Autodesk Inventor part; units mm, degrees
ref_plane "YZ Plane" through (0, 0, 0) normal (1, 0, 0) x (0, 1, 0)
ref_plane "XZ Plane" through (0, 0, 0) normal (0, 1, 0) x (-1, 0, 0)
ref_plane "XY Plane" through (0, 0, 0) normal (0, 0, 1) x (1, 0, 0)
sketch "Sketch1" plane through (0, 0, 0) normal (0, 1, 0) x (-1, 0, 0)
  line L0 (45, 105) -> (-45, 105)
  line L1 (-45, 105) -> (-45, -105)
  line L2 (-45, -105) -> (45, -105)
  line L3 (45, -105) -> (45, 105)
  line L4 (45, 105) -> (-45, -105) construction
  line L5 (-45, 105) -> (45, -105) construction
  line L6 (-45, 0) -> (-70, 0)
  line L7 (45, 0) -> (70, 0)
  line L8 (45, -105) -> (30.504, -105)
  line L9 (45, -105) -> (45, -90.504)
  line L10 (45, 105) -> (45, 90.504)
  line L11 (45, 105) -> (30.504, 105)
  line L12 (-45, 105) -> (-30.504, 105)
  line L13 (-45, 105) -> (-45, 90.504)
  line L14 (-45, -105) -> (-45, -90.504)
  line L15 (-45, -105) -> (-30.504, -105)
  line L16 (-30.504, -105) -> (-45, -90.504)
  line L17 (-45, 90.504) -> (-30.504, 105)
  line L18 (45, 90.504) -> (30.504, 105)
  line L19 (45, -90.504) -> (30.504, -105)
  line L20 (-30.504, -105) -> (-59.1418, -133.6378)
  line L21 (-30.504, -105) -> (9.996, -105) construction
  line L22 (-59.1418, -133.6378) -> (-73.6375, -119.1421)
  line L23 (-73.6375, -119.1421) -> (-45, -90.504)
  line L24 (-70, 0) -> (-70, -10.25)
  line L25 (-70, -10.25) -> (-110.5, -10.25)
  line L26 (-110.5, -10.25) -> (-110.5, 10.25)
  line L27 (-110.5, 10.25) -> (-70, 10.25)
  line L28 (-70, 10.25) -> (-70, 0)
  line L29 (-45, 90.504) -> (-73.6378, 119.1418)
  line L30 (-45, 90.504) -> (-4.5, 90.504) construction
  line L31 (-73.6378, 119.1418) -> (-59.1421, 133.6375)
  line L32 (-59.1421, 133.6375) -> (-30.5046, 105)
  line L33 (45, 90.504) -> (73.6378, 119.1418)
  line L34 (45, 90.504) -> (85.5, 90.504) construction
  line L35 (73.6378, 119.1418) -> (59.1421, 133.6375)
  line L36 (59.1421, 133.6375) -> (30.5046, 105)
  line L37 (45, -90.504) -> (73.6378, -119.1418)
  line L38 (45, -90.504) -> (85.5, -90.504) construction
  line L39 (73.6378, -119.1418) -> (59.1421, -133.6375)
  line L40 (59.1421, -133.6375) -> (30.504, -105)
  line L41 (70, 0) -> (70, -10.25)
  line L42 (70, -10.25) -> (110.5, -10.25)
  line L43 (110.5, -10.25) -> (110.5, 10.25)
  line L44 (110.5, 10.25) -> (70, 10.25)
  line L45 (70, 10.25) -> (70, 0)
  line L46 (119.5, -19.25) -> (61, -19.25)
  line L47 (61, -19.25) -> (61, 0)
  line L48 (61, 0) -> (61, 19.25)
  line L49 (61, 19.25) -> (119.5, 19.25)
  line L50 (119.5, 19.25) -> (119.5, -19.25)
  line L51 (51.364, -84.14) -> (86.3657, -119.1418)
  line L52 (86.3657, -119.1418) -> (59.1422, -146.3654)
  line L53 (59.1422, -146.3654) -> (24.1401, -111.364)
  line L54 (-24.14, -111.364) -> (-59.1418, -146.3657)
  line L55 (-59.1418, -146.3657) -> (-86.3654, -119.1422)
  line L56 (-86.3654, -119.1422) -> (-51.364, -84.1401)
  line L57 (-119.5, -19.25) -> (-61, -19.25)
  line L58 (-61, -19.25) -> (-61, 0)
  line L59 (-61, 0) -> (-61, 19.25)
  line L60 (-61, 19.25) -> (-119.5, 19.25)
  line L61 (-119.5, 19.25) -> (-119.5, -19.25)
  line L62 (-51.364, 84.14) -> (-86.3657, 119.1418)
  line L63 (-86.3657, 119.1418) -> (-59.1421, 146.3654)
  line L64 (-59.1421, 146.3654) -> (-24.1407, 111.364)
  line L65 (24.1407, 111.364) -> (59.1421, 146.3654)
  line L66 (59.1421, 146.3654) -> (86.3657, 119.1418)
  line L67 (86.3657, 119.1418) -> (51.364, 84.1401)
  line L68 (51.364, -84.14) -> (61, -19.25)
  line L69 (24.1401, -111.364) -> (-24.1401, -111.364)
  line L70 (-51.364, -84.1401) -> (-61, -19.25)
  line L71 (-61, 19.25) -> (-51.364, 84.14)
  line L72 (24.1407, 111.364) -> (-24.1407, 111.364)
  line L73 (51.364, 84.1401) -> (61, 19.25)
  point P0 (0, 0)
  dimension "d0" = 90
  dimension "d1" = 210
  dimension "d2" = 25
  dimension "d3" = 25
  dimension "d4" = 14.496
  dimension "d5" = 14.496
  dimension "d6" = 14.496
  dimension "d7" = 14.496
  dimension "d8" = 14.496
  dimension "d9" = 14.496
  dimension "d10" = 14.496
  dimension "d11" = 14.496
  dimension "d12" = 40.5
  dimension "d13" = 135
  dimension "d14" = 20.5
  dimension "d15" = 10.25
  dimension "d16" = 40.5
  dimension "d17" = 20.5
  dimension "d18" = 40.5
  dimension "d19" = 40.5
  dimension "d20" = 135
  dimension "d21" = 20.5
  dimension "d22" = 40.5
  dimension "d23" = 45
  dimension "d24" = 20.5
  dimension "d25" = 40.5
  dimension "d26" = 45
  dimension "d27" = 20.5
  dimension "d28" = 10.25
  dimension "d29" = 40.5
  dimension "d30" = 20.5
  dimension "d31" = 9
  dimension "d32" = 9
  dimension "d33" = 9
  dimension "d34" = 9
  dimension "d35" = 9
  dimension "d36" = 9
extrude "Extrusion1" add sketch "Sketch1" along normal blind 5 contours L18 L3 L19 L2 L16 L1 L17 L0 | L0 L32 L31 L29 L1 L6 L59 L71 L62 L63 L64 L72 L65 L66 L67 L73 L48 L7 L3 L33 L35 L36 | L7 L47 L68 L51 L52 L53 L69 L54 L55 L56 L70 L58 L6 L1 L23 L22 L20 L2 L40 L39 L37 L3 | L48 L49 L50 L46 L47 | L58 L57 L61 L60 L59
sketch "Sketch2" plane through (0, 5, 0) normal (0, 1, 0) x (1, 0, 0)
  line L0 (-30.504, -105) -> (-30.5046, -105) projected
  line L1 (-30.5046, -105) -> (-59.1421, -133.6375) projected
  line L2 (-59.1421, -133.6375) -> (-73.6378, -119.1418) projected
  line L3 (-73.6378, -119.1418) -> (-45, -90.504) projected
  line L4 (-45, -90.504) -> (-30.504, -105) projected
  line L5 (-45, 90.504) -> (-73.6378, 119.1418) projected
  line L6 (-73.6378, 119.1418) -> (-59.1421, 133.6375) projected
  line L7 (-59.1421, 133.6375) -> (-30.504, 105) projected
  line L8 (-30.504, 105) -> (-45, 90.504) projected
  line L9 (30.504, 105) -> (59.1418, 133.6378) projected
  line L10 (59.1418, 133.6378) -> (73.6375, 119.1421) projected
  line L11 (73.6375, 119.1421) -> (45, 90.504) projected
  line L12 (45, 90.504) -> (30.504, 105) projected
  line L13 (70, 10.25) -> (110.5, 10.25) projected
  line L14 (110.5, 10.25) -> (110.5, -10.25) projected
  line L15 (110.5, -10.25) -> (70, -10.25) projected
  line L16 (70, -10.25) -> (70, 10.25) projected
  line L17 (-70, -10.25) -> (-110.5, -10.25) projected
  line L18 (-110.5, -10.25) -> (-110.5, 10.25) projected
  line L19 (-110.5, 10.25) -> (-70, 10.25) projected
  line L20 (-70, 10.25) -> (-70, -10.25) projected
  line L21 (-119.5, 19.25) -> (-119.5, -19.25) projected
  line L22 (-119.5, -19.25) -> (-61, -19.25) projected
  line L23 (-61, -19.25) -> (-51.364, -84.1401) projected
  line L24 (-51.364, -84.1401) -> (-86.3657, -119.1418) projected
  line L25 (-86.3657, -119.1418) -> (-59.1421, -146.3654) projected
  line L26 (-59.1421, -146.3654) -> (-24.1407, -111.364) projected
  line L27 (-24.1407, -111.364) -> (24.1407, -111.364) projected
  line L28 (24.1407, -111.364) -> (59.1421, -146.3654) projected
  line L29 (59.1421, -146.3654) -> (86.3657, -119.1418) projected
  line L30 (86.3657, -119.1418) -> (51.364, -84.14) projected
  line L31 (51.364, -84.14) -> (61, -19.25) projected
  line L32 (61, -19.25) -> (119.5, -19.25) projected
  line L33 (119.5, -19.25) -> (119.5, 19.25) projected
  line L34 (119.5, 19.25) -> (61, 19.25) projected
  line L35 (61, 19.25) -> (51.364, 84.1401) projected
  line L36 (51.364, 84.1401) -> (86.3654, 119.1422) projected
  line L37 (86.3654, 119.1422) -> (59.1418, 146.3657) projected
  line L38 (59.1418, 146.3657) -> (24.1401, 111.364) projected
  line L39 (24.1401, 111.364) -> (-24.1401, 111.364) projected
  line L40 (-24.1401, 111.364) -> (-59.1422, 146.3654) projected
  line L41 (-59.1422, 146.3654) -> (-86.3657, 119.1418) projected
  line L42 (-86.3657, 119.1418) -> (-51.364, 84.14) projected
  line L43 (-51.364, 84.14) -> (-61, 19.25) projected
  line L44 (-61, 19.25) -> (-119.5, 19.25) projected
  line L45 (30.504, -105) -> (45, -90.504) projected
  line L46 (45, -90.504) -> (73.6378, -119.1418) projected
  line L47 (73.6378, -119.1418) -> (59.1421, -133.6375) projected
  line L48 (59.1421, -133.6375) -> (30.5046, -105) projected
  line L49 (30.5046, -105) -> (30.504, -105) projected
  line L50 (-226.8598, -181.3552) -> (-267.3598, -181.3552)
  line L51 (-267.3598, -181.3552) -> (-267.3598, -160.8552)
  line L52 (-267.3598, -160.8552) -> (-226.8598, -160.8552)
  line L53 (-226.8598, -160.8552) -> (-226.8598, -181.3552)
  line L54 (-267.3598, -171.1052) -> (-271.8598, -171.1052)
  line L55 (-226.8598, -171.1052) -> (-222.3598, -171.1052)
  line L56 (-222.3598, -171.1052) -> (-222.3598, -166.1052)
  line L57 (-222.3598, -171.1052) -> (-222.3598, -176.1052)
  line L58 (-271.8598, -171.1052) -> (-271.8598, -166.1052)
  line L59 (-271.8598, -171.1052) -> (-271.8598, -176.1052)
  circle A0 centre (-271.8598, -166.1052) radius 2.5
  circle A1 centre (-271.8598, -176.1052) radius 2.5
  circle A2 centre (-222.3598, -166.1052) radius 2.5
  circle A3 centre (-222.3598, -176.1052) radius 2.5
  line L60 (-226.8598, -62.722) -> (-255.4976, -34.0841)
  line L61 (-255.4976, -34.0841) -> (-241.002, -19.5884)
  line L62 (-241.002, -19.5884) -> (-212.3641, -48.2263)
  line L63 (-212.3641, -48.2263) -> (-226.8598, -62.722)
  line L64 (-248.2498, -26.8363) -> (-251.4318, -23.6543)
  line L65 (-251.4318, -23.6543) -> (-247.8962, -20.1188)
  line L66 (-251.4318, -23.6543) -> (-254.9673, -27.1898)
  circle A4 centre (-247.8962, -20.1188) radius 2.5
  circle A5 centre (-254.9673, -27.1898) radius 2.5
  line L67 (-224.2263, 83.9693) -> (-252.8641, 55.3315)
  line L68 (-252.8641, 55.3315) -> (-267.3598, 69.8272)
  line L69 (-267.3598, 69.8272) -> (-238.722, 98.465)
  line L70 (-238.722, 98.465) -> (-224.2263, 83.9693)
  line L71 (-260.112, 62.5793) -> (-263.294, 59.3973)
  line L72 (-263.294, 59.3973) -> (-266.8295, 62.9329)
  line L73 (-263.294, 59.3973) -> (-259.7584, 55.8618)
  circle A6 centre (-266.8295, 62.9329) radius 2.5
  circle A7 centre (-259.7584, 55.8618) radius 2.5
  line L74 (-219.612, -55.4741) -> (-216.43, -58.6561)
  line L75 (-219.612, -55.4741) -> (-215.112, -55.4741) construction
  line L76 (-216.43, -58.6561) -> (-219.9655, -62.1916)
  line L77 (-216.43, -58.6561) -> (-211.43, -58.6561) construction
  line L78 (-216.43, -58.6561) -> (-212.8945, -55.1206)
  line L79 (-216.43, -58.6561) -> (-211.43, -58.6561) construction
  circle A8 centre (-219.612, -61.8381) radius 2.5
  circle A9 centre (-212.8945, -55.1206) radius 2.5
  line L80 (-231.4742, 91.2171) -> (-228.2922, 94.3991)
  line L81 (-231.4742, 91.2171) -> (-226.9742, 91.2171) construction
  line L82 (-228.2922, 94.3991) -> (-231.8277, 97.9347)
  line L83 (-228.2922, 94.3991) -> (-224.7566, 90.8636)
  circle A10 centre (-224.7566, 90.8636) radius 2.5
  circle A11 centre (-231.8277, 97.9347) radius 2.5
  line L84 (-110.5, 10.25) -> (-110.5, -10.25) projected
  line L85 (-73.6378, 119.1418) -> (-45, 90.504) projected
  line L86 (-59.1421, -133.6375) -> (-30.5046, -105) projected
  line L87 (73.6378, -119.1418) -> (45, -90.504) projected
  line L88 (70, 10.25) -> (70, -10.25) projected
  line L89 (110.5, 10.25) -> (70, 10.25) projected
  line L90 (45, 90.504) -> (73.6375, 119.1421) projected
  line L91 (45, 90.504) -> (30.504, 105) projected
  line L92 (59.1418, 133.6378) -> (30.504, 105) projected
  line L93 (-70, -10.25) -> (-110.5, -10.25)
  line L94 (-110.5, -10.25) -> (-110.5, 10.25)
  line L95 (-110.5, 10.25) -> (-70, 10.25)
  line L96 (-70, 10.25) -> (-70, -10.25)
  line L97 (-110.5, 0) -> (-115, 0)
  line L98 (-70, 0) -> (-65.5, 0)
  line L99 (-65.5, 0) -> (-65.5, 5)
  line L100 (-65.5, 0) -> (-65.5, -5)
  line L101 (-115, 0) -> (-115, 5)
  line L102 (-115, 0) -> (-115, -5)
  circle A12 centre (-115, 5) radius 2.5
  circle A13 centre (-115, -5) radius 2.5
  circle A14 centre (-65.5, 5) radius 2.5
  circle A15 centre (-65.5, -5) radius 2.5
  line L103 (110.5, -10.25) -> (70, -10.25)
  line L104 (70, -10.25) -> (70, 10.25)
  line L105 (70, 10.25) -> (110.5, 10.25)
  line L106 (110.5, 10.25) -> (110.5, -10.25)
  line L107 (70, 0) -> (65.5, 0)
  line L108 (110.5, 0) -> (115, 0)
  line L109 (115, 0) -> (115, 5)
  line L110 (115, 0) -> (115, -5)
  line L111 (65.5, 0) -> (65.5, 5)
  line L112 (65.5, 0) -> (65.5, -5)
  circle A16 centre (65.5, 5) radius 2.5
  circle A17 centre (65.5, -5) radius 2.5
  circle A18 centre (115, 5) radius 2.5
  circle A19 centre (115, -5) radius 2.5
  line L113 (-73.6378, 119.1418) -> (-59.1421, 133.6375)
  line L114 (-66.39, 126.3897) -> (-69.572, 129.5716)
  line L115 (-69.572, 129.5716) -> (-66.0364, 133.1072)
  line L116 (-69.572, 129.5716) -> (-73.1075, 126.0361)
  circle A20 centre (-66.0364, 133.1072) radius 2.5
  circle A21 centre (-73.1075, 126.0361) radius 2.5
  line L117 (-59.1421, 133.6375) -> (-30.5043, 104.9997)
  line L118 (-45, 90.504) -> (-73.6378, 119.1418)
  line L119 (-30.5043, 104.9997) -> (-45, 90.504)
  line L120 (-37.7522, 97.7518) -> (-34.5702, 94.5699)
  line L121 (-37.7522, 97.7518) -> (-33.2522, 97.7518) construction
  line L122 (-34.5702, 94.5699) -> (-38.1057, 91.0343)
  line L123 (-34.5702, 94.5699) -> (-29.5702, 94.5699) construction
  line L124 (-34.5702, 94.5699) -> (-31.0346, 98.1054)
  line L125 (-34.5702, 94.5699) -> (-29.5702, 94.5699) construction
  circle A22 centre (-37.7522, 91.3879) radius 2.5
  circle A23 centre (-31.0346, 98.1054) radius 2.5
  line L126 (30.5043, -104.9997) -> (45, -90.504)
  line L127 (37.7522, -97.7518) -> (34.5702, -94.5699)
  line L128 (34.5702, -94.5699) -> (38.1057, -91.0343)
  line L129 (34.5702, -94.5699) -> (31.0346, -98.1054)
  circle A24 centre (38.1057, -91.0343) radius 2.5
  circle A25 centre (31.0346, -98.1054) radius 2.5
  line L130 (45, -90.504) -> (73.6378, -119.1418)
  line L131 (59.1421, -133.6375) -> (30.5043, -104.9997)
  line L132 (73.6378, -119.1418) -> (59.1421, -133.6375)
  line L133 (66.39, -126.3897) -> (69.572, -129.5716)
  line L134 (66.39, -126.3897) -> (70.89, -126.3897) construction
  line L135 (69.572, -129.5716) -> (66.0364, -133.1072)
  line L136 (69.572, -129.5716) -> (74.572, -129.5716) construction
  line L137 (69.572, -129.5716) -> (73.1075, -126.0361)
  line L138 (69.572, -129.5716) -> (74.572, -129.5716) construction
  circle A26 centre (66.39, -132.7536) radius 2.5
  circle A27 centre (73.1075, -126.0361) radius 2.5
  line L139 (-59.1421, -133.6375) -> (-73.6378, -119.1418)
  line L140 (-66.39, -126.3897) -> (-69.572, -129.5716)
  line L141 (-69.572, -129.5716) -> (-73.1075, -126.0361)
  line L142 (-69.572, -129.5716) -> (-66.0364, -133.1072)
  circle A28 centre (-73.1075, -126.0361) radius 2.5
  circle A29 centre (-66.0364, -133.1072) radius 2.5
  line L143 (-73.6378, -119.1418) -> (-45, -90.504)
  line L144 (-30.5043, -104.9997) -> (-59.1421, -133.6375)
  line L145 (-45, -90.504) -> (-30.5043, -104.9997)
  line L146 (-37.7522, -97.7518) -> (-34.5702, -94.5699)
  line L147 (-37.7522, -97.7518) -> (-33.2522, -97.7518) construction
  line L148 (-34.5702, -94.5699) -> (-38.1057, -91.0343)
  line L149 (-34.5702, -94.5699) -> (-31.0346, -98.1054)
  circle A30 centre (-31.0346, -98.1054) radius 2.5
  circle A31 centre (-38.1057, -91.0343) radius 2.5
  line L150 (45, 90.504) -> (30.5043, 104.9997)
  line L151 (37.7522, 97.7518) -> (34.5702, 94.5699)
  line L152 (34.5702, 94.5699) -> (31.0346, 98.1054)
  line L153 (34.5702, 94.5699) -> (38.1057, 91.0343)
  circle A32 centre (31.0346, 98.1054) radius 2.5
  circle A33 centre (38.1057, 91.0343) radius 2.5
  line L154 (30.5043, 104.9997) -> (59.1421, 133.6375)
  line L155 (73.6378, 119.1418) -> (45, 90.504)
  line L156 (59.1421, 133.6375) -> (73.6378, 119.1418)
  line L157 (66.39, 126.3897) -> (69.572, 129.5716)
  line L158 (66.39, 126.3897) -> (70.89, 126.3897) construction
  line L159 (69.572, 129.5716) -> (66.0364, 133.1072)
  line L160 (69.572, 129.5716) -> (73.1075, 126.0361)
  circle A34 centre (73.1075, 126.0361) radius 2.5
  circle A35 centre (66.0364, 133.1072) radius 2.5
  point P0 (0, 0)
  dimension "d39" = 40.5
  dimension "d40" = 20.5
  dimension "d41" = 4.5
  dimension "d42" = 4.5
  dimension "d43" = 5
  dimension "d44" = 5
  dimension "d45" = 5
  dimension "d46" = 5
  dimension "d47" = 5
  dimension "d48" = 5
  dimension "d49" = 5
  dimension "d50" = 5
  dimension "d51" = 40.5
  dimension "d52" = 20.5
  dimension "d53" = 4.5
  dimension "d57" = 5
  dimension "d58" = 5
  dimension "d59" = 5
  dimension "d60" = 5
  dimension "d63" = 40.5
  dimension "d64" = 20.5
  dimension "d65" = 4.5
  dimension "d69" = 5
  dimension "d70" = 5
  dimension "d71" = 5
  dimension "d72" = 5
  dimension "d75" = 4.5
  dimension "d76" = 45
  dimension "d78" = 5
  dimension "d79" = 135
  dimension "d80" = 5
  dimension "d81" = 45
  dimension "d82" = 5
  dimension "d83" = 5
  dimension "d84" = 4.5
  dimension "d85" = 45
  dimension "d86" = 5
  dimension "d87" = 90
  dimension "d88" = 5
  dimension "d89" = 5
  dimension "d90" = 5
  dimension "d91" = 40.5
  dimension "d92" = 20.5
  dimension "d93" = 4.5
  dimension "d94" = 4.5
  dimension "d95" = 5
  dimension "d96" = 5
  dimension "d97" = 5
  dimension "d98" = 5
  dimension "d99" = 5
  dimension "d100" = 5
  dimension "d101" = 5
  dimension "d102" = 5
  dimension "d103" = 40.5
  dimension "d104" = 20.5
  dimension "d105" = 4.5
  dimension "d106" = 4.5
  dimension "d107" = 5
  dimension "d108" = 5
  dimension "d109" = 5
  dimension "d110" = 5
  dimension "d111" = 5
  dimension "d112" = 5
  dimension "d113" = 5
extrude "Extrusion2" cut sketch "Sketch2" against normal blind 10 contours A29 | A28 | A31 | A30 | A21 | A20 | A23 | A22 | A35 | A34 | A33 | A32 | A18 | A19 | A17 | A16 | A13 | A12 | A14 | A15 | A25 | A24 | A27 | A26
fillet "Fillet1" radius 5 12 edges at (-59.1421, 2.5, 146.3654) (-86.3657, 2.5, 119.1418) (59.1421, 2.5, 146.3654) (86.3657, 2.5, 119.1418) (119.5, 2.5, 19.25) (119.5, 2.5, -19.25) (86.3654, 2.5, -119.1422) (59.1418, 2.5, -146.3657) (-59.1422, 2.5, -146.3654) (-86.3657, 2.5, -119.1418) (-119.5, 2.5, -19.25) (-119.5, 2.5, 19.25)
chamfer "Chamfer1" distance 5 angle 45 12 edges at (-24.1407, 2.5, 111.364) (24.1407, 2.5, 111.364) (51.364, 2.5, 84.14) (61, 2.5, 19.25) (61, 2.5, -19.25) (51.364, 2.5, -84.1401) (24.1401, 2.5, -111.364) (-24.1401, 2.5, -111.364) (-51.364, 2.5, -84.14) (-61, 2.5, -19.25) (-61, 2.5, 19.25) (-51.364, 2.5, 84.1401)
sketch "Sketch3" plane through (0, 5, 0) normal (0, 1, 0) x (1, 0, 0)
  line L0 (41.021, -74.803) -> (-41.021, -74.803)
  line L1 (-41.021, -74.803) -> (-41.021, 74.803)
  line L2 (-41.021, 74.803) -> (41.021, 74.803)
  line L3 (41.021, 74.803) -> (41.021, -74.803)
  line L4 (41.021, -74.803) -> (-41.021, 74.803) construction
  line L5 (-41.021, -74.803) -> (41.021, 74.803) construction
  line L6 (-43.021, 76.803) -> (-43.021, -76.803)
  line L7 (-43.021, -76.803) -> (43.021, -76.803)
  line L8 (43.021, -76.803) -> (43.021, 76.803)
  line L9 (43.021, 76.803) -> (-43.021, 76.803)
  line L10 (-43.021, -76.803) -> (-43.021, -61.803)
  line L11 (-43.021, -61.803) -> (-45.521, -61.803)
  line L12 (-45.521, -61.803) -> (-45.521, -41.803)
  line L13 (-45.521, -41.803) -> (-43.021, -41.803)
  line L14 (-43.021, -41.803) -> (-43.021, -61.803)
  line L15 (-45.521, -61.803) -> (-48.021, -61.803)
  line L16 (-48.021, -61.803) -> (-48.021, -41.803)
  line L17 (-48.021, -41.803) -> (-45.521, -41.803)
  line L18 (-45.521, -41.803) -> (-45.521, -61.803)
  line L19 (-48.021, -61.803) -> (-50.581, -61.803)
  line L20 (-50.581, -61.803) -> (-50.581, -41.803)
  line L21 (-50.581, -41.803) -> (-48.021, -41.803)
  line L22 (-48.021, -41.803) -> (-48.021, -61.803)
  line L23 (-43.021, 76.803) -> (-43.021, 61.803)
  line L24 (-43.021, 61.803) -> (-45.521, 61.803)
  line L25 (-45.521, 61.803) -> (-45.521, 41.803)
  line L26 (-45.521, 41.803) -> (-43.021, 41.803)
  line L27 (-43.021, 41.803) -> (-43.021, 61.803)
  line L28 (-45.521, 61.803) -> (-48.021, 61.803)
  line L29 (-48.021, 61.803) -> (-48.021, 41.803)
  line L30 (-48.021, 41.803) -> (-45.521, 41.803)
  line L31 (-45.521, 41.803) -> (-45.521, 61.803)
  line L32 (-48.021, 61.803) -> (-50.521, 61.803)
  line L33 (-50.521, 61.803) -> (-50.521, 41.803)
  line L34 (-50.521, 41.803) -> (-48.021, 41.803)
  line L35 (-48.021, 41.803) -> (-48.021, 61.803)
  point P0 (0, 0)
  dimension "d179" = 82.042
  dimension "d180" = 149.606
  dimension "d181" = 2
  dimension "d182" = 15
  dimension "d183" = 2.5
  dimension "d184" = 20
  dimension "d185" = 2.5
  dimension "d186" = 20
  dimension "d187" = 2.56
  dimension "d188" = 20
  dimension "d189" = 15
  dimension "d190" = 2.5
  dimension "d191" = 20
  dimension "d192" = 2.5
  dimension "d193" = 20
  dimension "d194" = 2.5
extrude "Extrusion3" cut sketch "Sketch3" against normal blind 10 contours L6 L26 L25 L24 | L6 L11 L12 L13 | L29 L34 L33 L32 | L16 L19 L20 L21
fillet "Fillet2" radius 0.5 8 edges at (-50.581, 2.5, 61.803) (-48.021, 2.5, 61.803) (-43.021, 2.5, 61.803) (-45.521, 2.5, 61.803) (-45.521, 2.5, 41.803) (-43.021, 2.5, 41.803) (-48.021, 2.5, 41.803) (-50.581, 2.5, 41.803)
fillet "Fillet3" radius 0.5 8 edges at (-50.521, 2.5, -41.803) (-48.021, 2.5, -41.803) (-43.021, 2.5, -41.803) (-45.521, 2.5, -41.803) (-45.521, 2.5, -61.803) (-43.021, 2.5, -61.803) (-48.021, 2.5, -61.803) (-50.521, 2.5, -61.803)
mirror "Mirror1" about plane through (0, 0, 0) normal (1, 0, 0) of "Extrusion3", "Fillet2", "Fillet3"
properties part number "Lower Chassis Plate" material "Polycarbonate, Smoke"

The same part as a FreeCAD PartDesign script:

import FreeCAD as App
import Part
import Sketcher

V = App.Vector


def edges_at(feature, points):
    """Names of the edges that pass closest to the given points."""
    edges = feature.Shape.Edges
    near = lambda p: min(range(len(edges)), key=lambda i: edges[i].distToShape(Part.Vertex(*p))[0])
    return sorted({f"Edge{near(p) + 1}" for p in points})


def add_polygon(sketch, points):
    """Adds a closed chain of lines whose ends are joined by coincident constraints."""
    first, n = sketch.GeometryCount, len(points)
    for a, b in zip(points, points[1:] + points[:1]):
        sketch.addGeometry(Part.LineSegment(App.Vector(*a, 0), App.Vector(*b, 0)), False)
    for i in range(n):
        sketch.addConstraint(Sketcher.Constraint("Coincident", first + i, 2, first + (i + 1) % n, 1))

doc = App.newDocument("Part")
body = doc.addObject("PartDesign::Body", "Body")

# Sketch on XZ plane
sketch1 = body.newObject("Sketcher::SketchObject", "Sketch")
sketch1.AttachmentSupport = (doc.getObject("XZ_Plane"), [""])
sketch1.MapMode = "FlatFace"
add_polygon(sketch1, [(51.364, 84.14), (61, 19.25), (119.5, 19.25), (119.5, -19.25), (61, -19.25), (51.364, -84.1401), (86.3654, -119.1422), (59.1418, -146.3657), (24.14, -111.364), (-24.1401, -111.364), (-59.1422, -146.3654), (-86.3657, -119.1418), (-51.364, -84.14), (-61, -19.25), (-119.5, -19.25), (-119.5, 19.25), (-61, 19.25), (-51.364, 84.1401), (-86.3657, 119.1418), (-59.1421, 146.3654), (-24.1407, 111.364), (24.1407, 111.364), (59.1421, 146.3654), (86.3657, 119.1418)])  # lines 0-23
add_polygon(sketch1, [(-45, 90.504), (-30.504, 105), (-59.1421, 133.6375), (-73.6378, 119.1418)])  # lines 24-27
add_polygon(sketch1, [(-30.504, -105), (-45, -90.504), (-73.6378, -119.1418), (-59.1421, -133.6375)])  # lines 28-31
add_polygon(sketch1, [(45, -90.504), (30.504, -105), (59.1418, -133.6378), (73.6375, -119.1421)])  # lines 32-35
add_polygon(sketch1, [(30.504, 105), (45, 90.504), (73.6378, 119.1418), (59.1421, 133.6375)])  # lines 36-39
add_polygon(sketch1, [(70, 0), (70, -10.25), (110.5, -10.25), (110.5, 10.25), (70, 10.25)])  # lines 40-44
add_polygon(sketch1, [(-70, 0), (-70, 10.25), (-110.5, 10.25), (-110.5, -10.25), (-70, -10.25)])  # lines 45-49
sketch1.addConstraint([
    Sketcher.Constraint("Horizontal", 1),
    Sketcher.Constraint("Vertical", 2),
    Sketcher.Constraint("Horizontal", 3),
    Sketcher.Constraint("Horizontal", 8),
    Sketcher.Constraint("Horizontal", 13),
    Sketcher.Constraint("Vertical", 14),
    Sketcher.Constraint("Horizontal", 15),
    Sketcher.Constraint("Horizontal", 20),
    Sketcher.Constraint("Vertical", 40),
    Sketcher.Constraint("Horizontal", 41),
    Sketcher.Constraint("Vertical", 42),
    Sketcher.Constraint("Horizontal", 43),
    Sketcher.Constraint("Vertical", 44),
    Sketcher.Constraint("Vertical", 45),
    Sketcher.Constraint("Horizontal", 46),
    Sketcher.Constraint("Vertical", 47),
    Sketcher.Constraint("Horizontal", 48),
    Sketcher.Constraint("Vertical", 49),
    Sketcher.Constraint("Symmetric", 0, 2, 12, 2, -1, 1),
    Sketcher.Constraint("Symmetric", 2, 2, 14, 2, -1, 1),
    Sketcher.Constraint("Symmetric", 4, 2, 16, 2, -1, 1),
    Sketcher.Constraint("Symmetric", 9, 2, 21, 2, -1, 1),
    Sketcher.Constraint("Symmetric", 10, 2, 22, 2, -1, 1),
    Sketcher.Constraint("Symmetric", 11, 2, 23, 2, -1, 1),
    Sketcher.Constraint("Symmetric", 24, 2, 32, 2, -1, 1),
    Sketcher.Constraint("Symmetric", 27, 2, 35, 2, -1, 1),
    Sketcher.Constraint("Symmetric", 28, 2, 36, 2, -1, 1),
    Sketcher.Constraint("Symmetric", 29, 2, 37, 2, -1, 1),
    Sketcher.Constraint("Symmetric", 30, 2, 38, 2, -1, 1),
    Sketcher.Constraint("Symmetric", 31, 2, 39, 2, -1, 1),
    Sketcher.Constraint("Symmetric", 40, 2, 45, 2, -1, 1),
    Sketcher.Constraint("Symmetric", 42, 2, 47, 2, -1, 1),
    Sketcher.Constraint("Symmetric", 4, 2, 11, 2, -2),
    Sketcher.Constraint("Symmetric", 3, 2, 12, 2, -2),
    Sketcher.Constraint("Symmetric", 18, 2, 21, 2, -2),
    Sketcher.Constraint("Symmetric", 17, 2, 22, 2, -2),
    Sketcher.Constraint("Symmetric", 31, 2, 32, 2, -2),
    Sketcher.Constraint("Symmetric", 28, 2, 35, 2, -2),
    Sketcher.Constraint("Symmetric", 26, 2, 37, 2, -2),
    Sketcher.Constraint("Symmetric", 25, 2, 38, 2, -2),
    Sketcher.Constraint("PointOnObject", 44, 2, -1),
    Sketcher.Constraint("PointOnObject", 49, 2, -1),
    Sketcher.Constraint("Perpendicular", 5, 6),
    Sketcher.Constraint("Perpendicular", 6, 7),
    Sketcher.Constraint("Perpendicular", 7, 9),
    Sketcher.Constraint("Perpendicular", 9, 10),
    Sketcher.Constraint("Perpendicular", 10, 11),
    Sketcher.Constraint("Parallel", 4, 16),
    Sketcher.Constraint("Perpendicular", 11, 17),
    Sketcher.Constraint("Perpendicular", 18, 19),
    Sketcher.Constraint("Perpendicular", 19, 21),
    Sketcher.Constraint("Parallel", 23, 24),
    Sketcher.Constraint("Perpendicular", 24, 25),
    Sketcher.Constraint("Perpendicular", 25, 26),
    Sketcher.Constraint("Perpendicular", 26, 27),
    Sketcher.Constraint("Perpendicular", 32, 33),
    Sketcher.Constraint("Perpendicular", 33, 34),
    Sketcher.Constraint("Perpendicular", 34, 35),
    Sketcher.Constraint("Horizontal", 22, 2, 26, 2),
    Sketcher.Constraint("Horizontal", 5, 2, 34, 2),
    Sketcher.Constraint("Horizontal", 43, 2, 45, 2),
    Sketcher.Constraint("Vertical", 18, 2, 25, 2),
    Sketcher.Constraint("Vertical", 6, 2, 33, 2),
    Sketcher.Constraint("Equal", 5, 7),
    Sketcher.Constraint("Equal", 7, 9),
    Sketcher.Constraint("DistanceX", 41, 1, 41, 2, 40.5),
    Sketcher.Constraint("DistanceY", 42, 1, 42, 2, 20.5),
    Sketcher.Constraint("DistanceX", 27, 2, -1, 1, 45.0),
    Sketcher.Constraint("DistanceX", 3, 2, 40, 2, 9.0),
    Sketcher.Constraint("DistanceY", 3, 2, 40, 2, 9.0),
    Sketcher.Constraint("DistanceX", 41, 2, 2, 2, 9.0),
    Sketcher.Constraint("Distance", 25, 40.5),
    Sketcher.Constraint("Distance", 26, 20.5),
    Sketcher.Constraint("DistanceX", -1, 1, 0, 2, 61.0),
    Sketcher.Constraint("DistanceY", -1, 1, 24, 2, 105.0),
    Sketcher.Constraint("Distance", 5, 49.5),
    Sketcher.Constraint("Distance", 6, 38.5),
    Sketcher.Constraint("DistanceY", 27, 2, 19, 2, 20.86),
])
pad1 = body.newObject("PartDesign::Pad", "Pad")
pad1.Profile = sketch1
pad1.Length = 5
pad1.Reversed = True

# Sketch on XZ plane
sketch2 = body.newObject("Sketcher::SketchObject", "Sketch001")
sketch2.AttachmentSupport = (doc.getObject("XZ_Plane"), [""])
sketch2.MapMode = "FlatFace"
sketch2.AttachmentOffset = App.Placement(V(0, 0, -5), App.Rotation())
sketch2.addGeometry([
    Part.Circle(V(-66.0364, 133.1072, 0), V(0, 0, 1), 2.5),  # 0
    Part.Circle(V(-73.1075, 126.0361, 0), V(0, 0, 1), 2.5),  # 1
    Part.Circle(V(-38.1057, 91.0343, 0), V(0, 0, 1), 2.5),  # 2
    Part.Circle(V(-31.0346, 98.1054, 0), V(0, 0, 1), 2.5),  # 3
    Part.Circle(V(-73.1075, -126.0361, 0), V(0, 0, 1), 2.5),  # 4
    Part.Circle(V(-66.0364, -133.1072, 0), V(0, 0, 1), 2.5),  # 5
    Part.Circle(V(-31.0346, -98.1054, 0), V(0, 0, 1), 2.5),  # 6
    Part.Circle(V(-37.7522, -91.3879, 0), V(0, 0, 1), 2.5),  # 7
    Part.Circle(V(66.0364, -133.1072, 0), V(0, 0, 1), 2.5),  # 8
    Part.Circle(V(73.1075, -126.0361, 0), V(0, 0, 1), 2.5),  # 9
    Part.Circle(V(38.1057, -91.0343, 0), V(0, 0, 1), 2.5),  # 10
    Part.Circle(V(31.0346, -98.1054, 0), V(0, 0, 1), 2.5),  # 11
    Part.Circle(V(115, -5, 0), V(0, 0, 1), 2.5),  # 12
    Part.Circle(V(115, 5, 0), V(0, 0, 1), 2.5),  # 13
    Part.Circle(V(65.5, 5, 0), V(0, 0, 1), 2.5),  # 14
    Part.Circle(V(65.5, -5, 0), V(0, 0, 1), 2.5),  # 15
    Part.Circle(V(-115, 5, 0), V(0, 0, 1), 2.5),  # 16
    Part.Circle(V(-115, -5, 0), V(0, 0, 1), 2.5),  # 17
    Part.Circle(V(-65.5, -5, 0), V(0, 0, 1), 2.5),  # 18
    Part.Circle(V(-65.5, 5, 0), V(0, 0, 1), 2.5),  # 19
    Part.Circle(V(31.0346, 98.1054, 0), V(0, 0, 1), 2.5),  # 20
    Part.Circle(V(38.1057, 91.0343, 0), V(0, 0, 1), 2.5),  # 21
    Part.Circle(V(73.1075, 126.0361, 0), V(0, 0, 1), 2.5),  # 22
    Part.Circle(V(66.39, 132.7536, 0), V(0, 0, 1), 2.5),  # 23
], False)
sketch2.addConstraint([
    Sketcher.Constraint("Equal", 0, 1),
    Sketcher.Constraint("Equal", 1, 2),
    Sketcher.Constraint("Equal", 2, 3),
    Sketcher.Constraint("Equal", 3, 4),
    Sketcher.Constraint("Equal", 4, 5),
    Sketcher.Constraint("Equal", 5, 6),
    Sketcher.Constraint("Equal", 6, 7),
    Sketcher.Constraint("Equal", 7, 8),
    Sketcher.Constraint("Equal", 8, 9),
    Sketcher.Constraint("Equal", 9, 10),
    Sketcher.Constraint("Equal", 10, 11),
    Sketcher.Constraint("Equal", 11, 12),
    Sketcher.Constraint("Equal", 12, 13),
    Sketcher.Constraint("Equal", 13, 14),
    Sketcher.Constraint("Equal", 14, 15),
    Sketcher.Constraint("Equal", 15, 16),
    Sketcher.Constraint("Equal", 16, 17),
    Sketcher.Constraint("Equal", 17, 18),
    Sketcher.Constraint("Equal", 18, 19),
    Sketcher.Constraint("Equal", 19, 20),
    Sketcher.Constraint("Equal", 20, 21),
    Sketcher.Constraint("Equal", 21, 22),
    Sketcher.Constraint("Equal", 22, 23),
    Sketcher.Constraint("Symmetric", 0, 3, 8, 3, -1, 1),
    Sketcher.Constraint("Symmetric", 1, 3, 9, 3, -1, 1),
    Sketcher.Constraint("Symmetric", 2, 3, 10, 3, -1, 1),
    Sketcher.Constraint("Symmetric", 3, 3, 11, 3, -1, 1),
    Sketcher.Constraint("Symmetric", 12, 3, 16, 3, -1, 1),
    Sketcher.Constraint("Symmetric", 13, 3, 17, 3, -1, 1),
    Sketcher.Constraint("Symmetric", 14, 3, 18, 3, -1, 1),
    Sketcher.Constraint("Symmetric", 15, 3, 19, 3, -1, 1),
    Sketcher.Constraint("Symmetric", 6, 3, 20, 3, -1, 1),
    Sketcher.Constraint("Symmetric", 4, 3, 22, 3, -1, 1),
    Sketcher.Constraint("Symmetric", 5, 3, 8, 3, -2),
    Sketcher.Constraint("Symmetric", 4, 3, 9, 3, -2),
    Sketcher.Constraint("Symmetric", 6, 3, 11, 3, -2),
    Sketcher.Constraint("Symmetric", 13, 3, 16, 3, -2),
    Sketcher.Constraint("Symmetric", 15, 3, 18, 3, -2),
    Sketcher.Constraint("Symmetric", 2, 3, 21, 3, -2),
    Sketcher.Constraint("Horizontal", 13, 3, 14, 3),
    Sketcher.Constraint("Diameter", 0, 5.0),
    Sketcher.Constraint("DistanceY", 12, 3, -1, 1, 5.0),
    Sketcher.Constraint("DistanceX", -1, 1, 12, 3, 115.0),
    Sketcher.Constraint("DistanceX", -1, 1, 14, 3, 65.5),
    Sketcher.Constraint("DistanceX", -1, 1, 23, 3, 66.39),
    Sketcher.Constraint("DistanceY", -1, 1, 1, 3, 126.036),
    Sketcher.Constraint("DistanceY", 7, 3, -1, 1, 91.388),
    Sketcher.Constraint("DistanceX", 1, 3, 0, 3, 7.071),
    Sketcher.Constraint("DistanceY", 1, 3, 0, 3, 7.071),
    Sketcher.Constraint("DistanceY", 2, 3, 0, 3, 42.073),
    Sketcher.Constraint("DistanceX", 2, 3, 3, 3, 7.071),
    Sketcher.Constraint("DistanceY", 2, 3, 3, 3, 7.071),
    Sketcher.Constraint("DistanceX", 1, 3, 3, 3, 42.073),
    Sketcher.Constraint("DistanceX", 6, 3, 8, 3, 97.071),
    Sketcher.Constraint("DistanceX", 7, 3, 10, 3, 75.858),
    Sketcher.Constraint("DistanceY", -1, 1, 23, 3, 132.7536),
])
pocket1 = body.newObject("PartDesign::Pocket", "Pocket")
pocket1.Profile = sketch2
pocket1.Length = 10
pocket1.Reversed = True
doc.recompute()

fillet = body.newObject("PartDesign::Fillet", "Fillet")
fillet.Base = (pocket1, edges_at(pocket1, [
    (-59.142, 2.5, 146.365),
    (-86.366, 2.5, 119.142),
    (59.142, 2.5, 146.365),
    (86.366, 2.5, 119.142),
    (119.5, 2.5, 19.25),
    (119.5, 2.5, -19.25),
    (86.365, 2.5, -119.142),
    (59.142, 2.5, -146.366),
    (-59.142, 2.5, -146.365),
    (-86.366, 2.5, -119.142),
    (-119.5, 2.5, -19.25),
    (-119.5, 2.5, 19.25),
]))
fillet.Radius = 5
doc.recompute()

chamfer = body.newObject("PartDesign::Chamfer", "Chamfer")
chamfer.Base = (fillet, edges_at(fillet, [
    (-24.141, 2.5, 111.364),
    (24.141, 2.5, 111.364),
    (51.364, 2.5, 84.14),
    (61, 2.5, 19.25),
    (61, 2.5, -19.25),
    (51.364, 2.5, -84.14),
    (24.14, 2.5, -111.364),
    (-24.14, 2.5, -111.364),
    (-51.364, 2.5, -84.14),
    (-61, 2.5, -19.25),
    (-61, 2.5, 19.25),
    (-51.364, 2.5, 84.14),
]))
chamfer.Size = 5

# Sketch on XZ plane
sketch3 = body.newObject("Sketcher::SketchObject", "Sketch002")
sketch3.AttachmentSupport = (doc.getObject("XZ_Plane"), [""])
sketch3.MapMode = "FlatFace"
sketch3.AttachmentOffset = App.Placement(V(0, 0, -5), App.Rotation())
add_polygon(sketch3, [(-43.021, -41.803), (-43.021, -61.803), (-45.521, -61.803), (-45.521, -41.803)])  # lines 0-3
add_polygon(sketch3, [(-43.021, 61.803), (-43.021, 41.803), (-45.521, 41.803), (-45.521, 61.803)])  # lines 4-7
add_polygon(sketch3, [(-48.021, -41.803), (-48.021, -61.803), (-50.521, -61.803), (-50.521, -41.803)])  # lines 8-11
add_polygon(sketch3, [(-48.021, 61.803), (-48.021, 41.803), (-50.581, 41.803), (-50.581, 61.803)])  # lines 12-15
sketch3.addConstraint([
    Sketcher.Constraint("Vertical", 0),
    Sketcher.Constraint("Horizontal", 1),
    Sketcher.Constraint("Vertical", 2),
    Sketcher.Constraint("Horizontal", 3),
    Sketcher.Constraint("Vertical", 4),
    Sketcher.Constraint("Horizontal", 5),
    Sketcher.Constraint("Vertical", 6),
    Sketcher.Constraint("Horizontal", 7),
    Sketcher.Constraint("Vertical", 8),
    Sketcher.Constraint("Horizontal", 9),
    Sketcher.Constraint("Vertical", 10),
    Sketcher.Constraint("Horizontal", 11),
    Sketcher.Constraint("Vertical", 12),
    Sketcher.Constraint("Horizontal", 13),
    Sketcher.Constraint("Vertical", 14),
    Sketcher.Constraint("Horizontal", 15),
    Sketcher.Constraint("Symmetric", 3, 2, 4, 2, -1),
    Sketcher.Constraint("Symmetric", 1, 2, 6, 2, -1),
    Sketcher.Constraint("Symmetric", 11, 2, 12, 2, -1),
    Sketcher.Constraint("Horizontal", 1, 2, 8, 2),
    Sketcher.Constraint("Horizontal", 3, 2, 10, 2),
    Sketcher.Constraint("Horizontal", 7, 2, 14, 2),
    Sketcher.Constraint("Equal", 7, 9),
    Sketcher.Constraint("DistanceY", 0, 2, 0, 1, 20.0),
    Sketcher.Constraint("DistanceX", 1, 2, 1, 1, 2.5),
    Sketcher.Constraint("DistanceX", 13, 2, 13, 1, 2.56),
    Sketcher.Constraint("DistanceX", 8, 2, 1, 2, 2.5),
    Sketcher.Constraint("DistanceX", 0, 2, -1, 1, 43.021),
    Sketcher.Constraint("DistanceY", 0, 2, -1, 1, 61.803),
])
pocket2 = body.newObject("PartDesign::Pocket", "Pocket001")
pocket2.Profile = sketch3
pocket2.Length = 10
pocket2.Reversed = True
doc.recompute()

fillet2 = body.newObject("PartDesign::Fillet", "Fillet001")
fillet2.Base = (pocket2, edges_at(pocket2, [
    (-50.581, 2.5, 61.803),
    (-48.021, 2.5, 61.803),
    (-43.021, 2.5, 61.803),
    (-45.521, 2.5, 61.803),
    (-45.521, 2.5, 41.803),
    (-43.021, 2.5, 41.803),
    (-48.021, 2.5, 41.803),
    (-50.581, 2.5, 41.803),
]))
fillet2.Radius = 0.5
doc.recompute()

fillet3 = body.newObject("PartDesign::Fillet", "Fillet002")
fillet3.Base = (fillet2, edges_at(fillet2, [
    (-50.521, 2.5, -41.803),
    (-48.021, 2.5, -41.803),
    (-43.021, 2.5, -41.803),
    (-45.521, 2.5, -41.803),
    (-45.521, 2.5, -61.803),
    (-43.021, 2.5, -61.803),
    (-48.021, 2.5, -61.803),
    (-50.521, 2.5, -61.803),
]))
fillet3.Radius = 0.5
doc.recompute()

mirrored = body.newObject("PartDesign::Mirrored", "Mirrored")
mirrored.Originals = [pocket2, fillet2, fillet3]
mirrored.MirrorPlane = (doc.getObject("YZ_Plane"), [""])
body.Tip = mirrored

doc.recompute()
